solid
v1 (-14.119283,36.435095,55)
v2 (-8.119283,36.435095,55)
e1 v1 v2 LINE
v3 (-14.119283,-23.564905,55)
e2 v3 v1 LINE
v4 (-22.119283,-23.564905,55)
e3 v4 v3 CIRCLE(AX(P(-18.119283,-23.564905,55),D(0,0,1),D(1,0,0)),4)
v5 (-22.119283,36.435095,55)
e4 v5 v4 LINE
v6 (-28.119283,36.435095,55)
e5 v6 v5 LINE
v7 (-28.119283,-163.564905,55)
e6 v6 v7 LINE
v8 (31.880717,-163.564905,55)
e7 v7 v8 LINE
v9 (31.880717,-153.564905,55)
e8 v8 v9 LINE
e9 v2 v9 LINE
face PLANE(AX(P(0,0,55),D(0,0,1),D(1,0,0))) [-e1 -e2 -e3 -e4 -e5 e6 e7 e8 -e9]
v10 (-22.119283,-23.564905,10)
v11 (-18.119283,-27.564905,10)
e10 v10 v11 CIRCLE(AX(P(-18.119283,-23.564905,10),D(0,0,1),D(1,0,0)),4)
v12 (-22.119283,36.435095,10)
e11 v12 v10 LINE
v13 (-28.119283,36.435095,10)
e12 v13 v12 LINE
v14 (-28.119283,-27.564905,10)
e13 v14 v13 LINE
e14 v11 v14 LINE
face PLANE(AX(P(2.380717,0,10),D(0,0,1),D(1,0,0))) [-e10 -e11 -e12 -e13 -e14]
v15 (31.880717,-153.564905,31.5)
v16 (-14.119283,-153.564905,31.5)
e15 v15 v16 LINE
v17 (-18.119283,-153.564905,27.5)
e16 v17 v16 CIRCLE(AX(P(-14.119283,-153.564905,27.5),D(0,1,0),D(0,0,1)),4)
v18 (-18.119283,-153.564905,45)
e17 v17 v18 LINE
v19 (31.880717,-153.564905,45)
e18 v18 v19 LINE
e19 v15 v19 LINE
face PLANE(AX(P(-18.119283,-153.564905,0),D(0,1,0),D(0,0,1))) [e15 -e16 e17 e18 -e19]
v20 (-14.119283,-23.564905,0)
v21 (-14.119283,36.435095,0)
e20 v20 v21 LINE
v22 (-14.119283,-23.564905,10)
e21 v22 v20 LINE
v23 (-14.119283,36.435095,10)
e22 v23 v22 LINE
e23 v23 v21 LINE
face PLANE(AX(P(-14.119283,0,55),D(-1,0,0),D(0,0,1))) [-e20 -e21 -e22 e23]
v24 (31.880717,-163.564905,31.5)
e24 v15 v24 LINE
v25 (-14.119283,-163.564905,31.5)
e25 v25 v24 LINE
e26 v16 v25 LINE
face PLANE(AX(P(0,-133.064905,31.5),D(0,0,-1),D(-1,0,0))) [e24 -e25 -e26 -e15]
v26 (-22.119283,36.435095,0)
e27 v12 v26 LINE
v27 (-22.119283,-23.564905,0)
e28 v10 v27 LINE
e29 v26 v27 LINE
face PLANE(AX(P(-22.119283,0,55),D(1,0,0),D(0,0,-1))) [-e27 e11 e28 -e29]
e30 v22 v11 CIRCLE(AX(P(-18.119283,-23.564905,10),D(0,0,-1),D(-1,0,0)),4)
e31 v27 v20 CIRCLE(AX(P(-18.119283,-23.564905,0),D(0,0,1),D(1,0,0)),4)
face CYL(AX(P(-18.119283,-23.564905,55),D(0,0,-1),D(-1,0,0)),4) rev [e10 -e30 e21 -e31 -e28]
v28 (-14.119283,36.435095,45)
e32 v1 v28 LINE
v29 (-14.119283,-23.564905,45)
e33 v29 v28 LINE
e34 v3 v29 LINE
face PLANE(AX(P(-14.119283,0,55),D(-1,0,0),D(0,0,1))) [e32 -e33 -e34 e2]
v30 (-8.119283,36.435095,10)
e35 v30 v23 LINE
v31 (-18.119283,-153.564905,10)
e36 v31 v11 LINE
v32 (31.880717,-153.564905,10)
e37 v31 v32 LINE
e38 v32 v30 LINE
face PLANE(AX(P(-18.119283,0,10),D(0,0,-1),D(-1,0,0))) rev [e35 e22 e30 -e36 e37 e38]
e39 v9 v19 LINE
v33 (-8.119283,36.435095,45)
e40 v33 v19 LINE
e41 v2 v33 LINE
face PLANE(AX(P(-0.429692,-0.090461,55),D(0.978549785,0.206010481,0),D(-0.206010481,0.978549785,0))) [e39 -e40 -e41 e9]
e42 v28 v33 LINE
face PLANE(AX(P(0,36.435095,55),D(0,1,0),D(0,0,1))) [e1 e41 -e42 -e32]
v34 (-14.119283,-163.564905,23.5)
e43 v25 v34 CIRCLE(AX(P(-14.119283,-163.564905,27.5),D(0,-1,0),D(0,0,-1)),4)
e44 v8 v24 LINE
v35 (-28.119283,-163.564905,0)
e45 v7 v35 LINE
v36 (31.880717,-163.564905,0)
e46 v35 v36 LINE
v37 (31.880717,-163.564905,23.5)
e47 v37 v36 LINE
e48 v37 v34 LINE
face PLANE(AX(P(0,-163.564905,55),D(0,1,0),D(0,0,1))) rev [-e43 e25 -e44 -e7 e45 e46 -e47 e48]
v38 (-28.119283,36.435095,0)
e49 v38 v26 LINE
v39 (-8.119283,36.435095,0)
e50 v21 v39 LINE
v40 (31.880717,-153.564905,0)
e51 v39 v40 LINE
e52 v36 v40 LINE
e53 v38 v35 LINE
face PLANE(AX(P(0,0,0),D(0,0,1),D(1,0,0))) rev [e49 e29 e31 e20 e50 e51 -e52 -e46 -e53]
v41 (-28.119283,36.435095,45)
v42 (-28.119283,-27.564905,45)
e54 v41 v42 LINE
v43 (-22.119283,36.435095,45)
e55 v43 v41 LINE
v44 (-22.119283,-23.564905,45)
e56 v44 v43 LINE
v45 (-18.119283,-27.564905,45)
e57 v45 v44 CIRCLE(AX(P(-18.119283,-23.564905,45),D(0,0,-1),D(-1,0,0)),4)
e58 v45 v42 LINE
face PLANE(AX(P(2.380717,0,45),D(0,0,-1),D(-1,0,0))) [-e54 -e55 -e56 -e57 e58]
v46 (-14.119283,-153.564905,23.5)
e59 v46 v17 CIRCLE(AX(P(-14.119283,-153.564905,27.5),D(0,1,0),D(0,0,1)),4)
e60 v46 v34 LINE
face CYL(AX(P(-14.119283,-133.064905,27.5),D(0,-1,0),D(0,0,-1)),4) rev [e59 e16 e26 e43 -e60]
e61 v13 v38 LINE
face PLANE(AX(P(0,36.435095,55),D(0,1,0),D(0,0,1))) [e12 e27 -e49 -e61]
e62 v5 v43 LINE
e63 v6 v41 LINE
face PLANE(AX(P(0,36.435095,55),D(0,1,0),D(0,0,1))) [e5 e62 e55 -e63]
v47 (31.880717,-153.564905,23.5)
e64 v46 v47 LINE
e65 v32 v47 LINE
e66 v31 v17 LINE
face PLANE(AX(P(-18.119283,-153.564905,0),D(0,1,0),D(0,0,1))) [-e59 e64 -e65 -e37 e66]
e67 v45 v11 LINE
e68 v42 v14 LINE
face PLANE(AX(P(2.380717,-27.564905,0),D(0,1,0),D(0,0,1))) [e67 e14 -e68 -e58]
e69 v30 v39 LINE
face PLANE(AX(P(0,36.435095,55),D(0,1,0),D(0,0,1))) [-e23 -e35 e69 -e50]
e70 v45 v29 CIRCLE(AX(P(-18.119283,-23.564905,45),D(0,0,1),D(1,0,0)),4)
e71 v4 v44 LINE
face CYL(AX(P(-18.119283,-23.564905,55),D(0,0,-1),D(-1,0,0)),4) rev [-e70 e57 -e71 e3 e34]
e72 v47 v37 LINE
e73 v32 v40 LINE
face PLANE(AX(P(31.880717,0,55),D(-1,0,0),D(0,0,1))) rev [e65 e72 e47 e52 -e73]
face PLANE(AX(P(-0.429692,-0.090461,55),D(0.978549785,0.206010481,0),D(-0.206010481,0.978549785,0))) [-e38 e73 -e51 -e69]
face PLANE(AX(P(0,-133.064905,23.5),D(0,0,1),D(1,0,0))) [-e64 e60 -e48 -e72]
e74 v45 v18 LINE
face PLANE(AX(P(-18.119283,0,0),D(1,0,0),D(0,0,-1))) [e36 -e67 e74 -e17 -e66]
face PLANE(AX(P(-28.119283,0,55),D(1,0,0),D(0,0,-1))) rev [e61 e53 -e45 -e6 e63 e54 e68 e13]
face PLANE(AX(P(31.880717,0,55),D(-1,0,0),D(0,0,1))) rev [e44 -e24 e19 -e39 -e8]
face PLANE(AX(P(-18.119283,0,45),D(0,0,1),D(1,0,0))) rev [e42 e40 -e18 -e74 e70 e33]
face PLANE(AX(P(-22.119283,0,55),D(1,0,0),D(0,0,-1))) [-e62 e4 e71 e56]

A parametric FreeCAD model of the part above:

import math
import FreeCAD as App
import Part
import Sketcher

doc = App.newDocument("Part")
body = doc.addObject("PartDesign::Body", "Body")

sketch1 = body.newObject("Sketcher::SketchObject", "Sketch")
sketch1.AttachmentSupport = (doc.getObject("XY_Plane"), [""])
sketch1.MapMode = "FlatFace"
sketch1.addGeometry([
    Part.LineSegment(App.Vector(-28.1, 36.4, 0), App.Vector(-28.1, -163.6, 0)),
    Part.LineSegment(App.Vector(-28.1, -163.6, 0), App.Vector(31.9, -163.6, 0)),
    Part.LineSegment(App.Vector(31.9, -163.6, 0), App.Vector(31.9, -153.6, 0)),
    Part.LineSegment(App.Vector(31.9, -153.6, 0), App.Vector(-8.1, 36.4, 0)),
    Part.LineSegment(App.Vector(-8.1, 36.4, 0), App.Vector(-14.1, 36.4, 0)),
    Part.LineSegment(App.Vector(-14.1, 36.4, 0), App.Vector(-14.1, -23.6, 0)),
    Part.ArcOfCircle(Part.Circle(App.Vector(-18.1, -23.6, 0), App.Vector(0, 0, 1), 4), math.radians(180), math.radians(360)),
    Part.LineSegment(App.Vector(-22.1, -23.6, 0), App.Vector(-22.1, 36.4, 0)),
    Part.LineSegment(App.Vector(-22.1, 36.4, 0), App.Vector(-28.1, 36.4, 0)),
], False)
sketch1.addConstraint([
    Sketcher.Constraint("Coincident", 0, 2, 1, 1),
    Sketcher.Constraint("Coincident", 1, 2, 2, 1),
    Sketcher.Constraint("Coincident", 2, 2, 3, 1),
    Sketcher.Constraint("Coincident", 3, 2, 4, 1),
    Sketcher.Constraint("Coincident", 4, 2, 5, 1),
    Sketcher.Constraint("Tangent", 5, 2, 6, 2),
    Sketcher.Constraint("Tangent", 6, 1, 7, 1),
    Sketcher.Constraint("Coincident", 7, 2, 8, 1),
    Sketcher.Constraint("Coincident", 8, 2, 0, 1),
    Sketcher.Constraint("Vertical", 0),
    Sketcher.Constraint("Horizontal", 1),
    Sketcher.Constraint("Vertical", 2),
    Sketcher.Constraint("Horizontal", 4),
    Sketcher.Constraint("Vertical", 5),
    Sketcher.Constraint("Vertical", 7),
    Sketcher.Constraint("Horizontal", 8),
    Sketcher.Constraint("Horizontal", 4, 2, 7, 2),
    Sketcher.Constraint("Equal", 4, 8),
    Sketcher.Constraint("Equal", 1, 5),
    Sketcher.Constraint("Radius", 6, 4.0),
    Sketcher.Constraint("DistanceX", 1, 1, 1, 2, 60.0),
    Sketcher.Constraint("DistanceX", 4, 2, 4, 1, 6.0),
    Sketcher.Constraint("DistanceY", 0, 2, 0, 1, 200.0),
    Sketcher.Constraint("DistanceY", 2, 1, 2, 2, 10.0),
    Sketcher.Constraint("DistanceX", 6, 3, -1, 1, 18.119283),
    Sketcher.Constraint("DistanceY", 6, 3, -1, 1, 23.564905),
])
pad1 = body.newObject("PartDesign::Pad", "Pad")
pad1.Profile = sketch1
pad1.Length = 55

sketch2 = body.newObject("Sketcher::SketchObject", "Sketch001")
sketch2.AttachmentSupport = (doc.getObject("YZ_Plane"), [""])
sketch2.MapMode = "FlatFace"
sketch2.AttachmentOffset = App.Placement(App.Vector(0, 0, 31.880717), App.Rotation())
sketch2.addGeometry([
    Part.LineSegment(App.Vector(-154, 45, 0), App.Vector(-154, 10, 0)),
    Part.LineSegment(App.Vector(-154, 10, 0), App.Vector(42, 10, 0)),
    Part.LineSegment(App.Vector(42, 10, 0), App.Vector(42, 45, 0)),
    Part.LineSegment(App.Vector(42, 45, 0), App.Vector(-154, 45, 0)),
], False)
sketch2.addConstraint([
    Sketcher.Constraint("Coincident", 0, 2, 1, 1),
    Sketcher.Constraint("Coincident", 1, 2, 2, 1),
    Sketcher.Constraint("Coincident", 2, 2, 3, 1),
    Sketcher.Constraint("Coincident", 3, 2, 0, 1),
    Sketcher.Constraint("Vertical", 0),
    Sketcher.Constraint("Horizontal", 1),
    Sketcher.Constraint("Vertical", 2),
    Sketcher.Constraint("Horizontal", 3),
    Sketcher.Constraint("DistanceY", 0, 2, 0, 1, 35.0),
    Sketcher.Constraint("DistanceY", -1, 1, 0, 2, 10.0),
    Sketcher.Constraint("DistanceX", 1, 1, 1, 2, 195.074727),
    Sketcher.Constraint("DistanceX", 0, 2, -1, 1, 153.564905),
])
pocket1 = body.newObject("PartDesign::Pocket", "Pocket")
pocket1.Profile = sketch2
pocket1.Length = 50

sketch3 = body.newObject("Sketcher::SketchObject", "Sketch002")
sketch3.AttachmentSupport = (doc.getObject("YZ_Plane"), [""])
sketch3.MapMode = "FlatFace"
sketch3.AttachmentOffset = App.Placement(App.Vector(0, 0, -28.119283), App.Rotation())
sketch3.addGeometry([
    Part.LineSegment(App.Vector(43, 10, 0), App.Vector(-28, 10, 0)),
    Part.LineSegment(App.Vector(-28, 10, 0), App.Vector(-28, 45, 0)),
    Part.LineSegment(App.Vector(-28, 45, 0), App.Vector(43, 45, 0)),
    Part.LineSegment(App.Vector(43, 45, 0), App.Vector(43, 10, 0)),
], False)
sketch3.addConstraint([
    Sketcher.Constraint("Coincident", 0, 2, 1, 1),
    Sketcher.Constraint("Coincident", 1, 2, 2, 1),
    Sketcher.Constraint("Coincident", 2, 2, 3, 1),
    Sketcher.Constraint("Coincident", 3, 2, 0, 1),
    Sketcher.Constraint("Horizontal", 0),
    Sketcher.Constraint("Vertical", 1),
    Sketcher.Constraint("Horizontal", 2),
    Sketcher.Constraint("Vertical", 3),
    Sketcher.Constraint("DistanceY", 1, 1, 1, 2, 35.0),
    Sketcher.Constraint("DistanceY", -1, 1, 0, 2, 10.0),
    Sketcher.Constraint("DistanceX", 0, 2, 0, 1, 70.173292),
    Sketcher.Constraint("DistanceX", 0, 2, -1, 1, 27.564905),
])
pocket2 = body.newObject("PartDesign::Pocket", "Pocket001")
pocket2.Profile = sketch3
pocket2.Length = 30.5
pocket2.Reversed = True

sketch4 = body.newObject("Sketcher::SketchObject", "Sketch003")
sketch4.AttachmentSupport = (doc.getObject("XZ_Plane"), [""])
sketch4.MapMode = "FlatFace"
sketch4.AttachmentOffset = App.Placement(App.Vector(0, 0, 163.564905), App.Rotation())
sketch4.addGeometry([
    Part.LineSegment(App.Vector(31.9, 31.5, 0), App.Vector(-14.1, 31.5, 0)),
    Part.ArcOfCircle(Part.Circle(App.Vector(-14.1, 27.5, 0), App.Vector(0, 0, 1), 4), math.radians(90), math.radians(270)),
    Part.LineSegment(App.Vector(-14.1, 23.5, 0), App.Vector(31.9, 23.5, 0)),
    Part.LineSegment(App.Vector(31.9, 23.5, 0), App.Vector(31.9, 31.5, 0)),
], False)
sketch4.addConstraint([
    Sketcher.Constraint("Tangent", 0, 2, 1, 1),
    Sketcher.Constraint("Tangent", 1, 2, 2, 1),
    Sketcher.Constraint("Coincident", 2, 2, 3, 1),
    Sketcher.Constraint("Coincident", 3, 2, 0, 1),
    Sketcher.Constraint("Horizontal", 0),
    Sketcher.Constraint("Horizontal", 2),
    Sketcher.Constraint("Vertical", 3),
    Sketcher.Constraint("Radius", 1, 4.0),
    Sketcher.Constraint("DistanceX", 0, 2, 0, 1, 46.0),
    Sketcher.Constraint("DistanceY", -1, 1, 1, 3, 27.5),
    Sketcher.Constraint("DistanceX", 1, 3, -1, 1, 14.119283),
])
pocket3 = body.newObject("PartDesign::Pocket", "Pocket002")
pocket3.Profile = sketch4
pocket3.Length = 30.5

doc.recompute()
